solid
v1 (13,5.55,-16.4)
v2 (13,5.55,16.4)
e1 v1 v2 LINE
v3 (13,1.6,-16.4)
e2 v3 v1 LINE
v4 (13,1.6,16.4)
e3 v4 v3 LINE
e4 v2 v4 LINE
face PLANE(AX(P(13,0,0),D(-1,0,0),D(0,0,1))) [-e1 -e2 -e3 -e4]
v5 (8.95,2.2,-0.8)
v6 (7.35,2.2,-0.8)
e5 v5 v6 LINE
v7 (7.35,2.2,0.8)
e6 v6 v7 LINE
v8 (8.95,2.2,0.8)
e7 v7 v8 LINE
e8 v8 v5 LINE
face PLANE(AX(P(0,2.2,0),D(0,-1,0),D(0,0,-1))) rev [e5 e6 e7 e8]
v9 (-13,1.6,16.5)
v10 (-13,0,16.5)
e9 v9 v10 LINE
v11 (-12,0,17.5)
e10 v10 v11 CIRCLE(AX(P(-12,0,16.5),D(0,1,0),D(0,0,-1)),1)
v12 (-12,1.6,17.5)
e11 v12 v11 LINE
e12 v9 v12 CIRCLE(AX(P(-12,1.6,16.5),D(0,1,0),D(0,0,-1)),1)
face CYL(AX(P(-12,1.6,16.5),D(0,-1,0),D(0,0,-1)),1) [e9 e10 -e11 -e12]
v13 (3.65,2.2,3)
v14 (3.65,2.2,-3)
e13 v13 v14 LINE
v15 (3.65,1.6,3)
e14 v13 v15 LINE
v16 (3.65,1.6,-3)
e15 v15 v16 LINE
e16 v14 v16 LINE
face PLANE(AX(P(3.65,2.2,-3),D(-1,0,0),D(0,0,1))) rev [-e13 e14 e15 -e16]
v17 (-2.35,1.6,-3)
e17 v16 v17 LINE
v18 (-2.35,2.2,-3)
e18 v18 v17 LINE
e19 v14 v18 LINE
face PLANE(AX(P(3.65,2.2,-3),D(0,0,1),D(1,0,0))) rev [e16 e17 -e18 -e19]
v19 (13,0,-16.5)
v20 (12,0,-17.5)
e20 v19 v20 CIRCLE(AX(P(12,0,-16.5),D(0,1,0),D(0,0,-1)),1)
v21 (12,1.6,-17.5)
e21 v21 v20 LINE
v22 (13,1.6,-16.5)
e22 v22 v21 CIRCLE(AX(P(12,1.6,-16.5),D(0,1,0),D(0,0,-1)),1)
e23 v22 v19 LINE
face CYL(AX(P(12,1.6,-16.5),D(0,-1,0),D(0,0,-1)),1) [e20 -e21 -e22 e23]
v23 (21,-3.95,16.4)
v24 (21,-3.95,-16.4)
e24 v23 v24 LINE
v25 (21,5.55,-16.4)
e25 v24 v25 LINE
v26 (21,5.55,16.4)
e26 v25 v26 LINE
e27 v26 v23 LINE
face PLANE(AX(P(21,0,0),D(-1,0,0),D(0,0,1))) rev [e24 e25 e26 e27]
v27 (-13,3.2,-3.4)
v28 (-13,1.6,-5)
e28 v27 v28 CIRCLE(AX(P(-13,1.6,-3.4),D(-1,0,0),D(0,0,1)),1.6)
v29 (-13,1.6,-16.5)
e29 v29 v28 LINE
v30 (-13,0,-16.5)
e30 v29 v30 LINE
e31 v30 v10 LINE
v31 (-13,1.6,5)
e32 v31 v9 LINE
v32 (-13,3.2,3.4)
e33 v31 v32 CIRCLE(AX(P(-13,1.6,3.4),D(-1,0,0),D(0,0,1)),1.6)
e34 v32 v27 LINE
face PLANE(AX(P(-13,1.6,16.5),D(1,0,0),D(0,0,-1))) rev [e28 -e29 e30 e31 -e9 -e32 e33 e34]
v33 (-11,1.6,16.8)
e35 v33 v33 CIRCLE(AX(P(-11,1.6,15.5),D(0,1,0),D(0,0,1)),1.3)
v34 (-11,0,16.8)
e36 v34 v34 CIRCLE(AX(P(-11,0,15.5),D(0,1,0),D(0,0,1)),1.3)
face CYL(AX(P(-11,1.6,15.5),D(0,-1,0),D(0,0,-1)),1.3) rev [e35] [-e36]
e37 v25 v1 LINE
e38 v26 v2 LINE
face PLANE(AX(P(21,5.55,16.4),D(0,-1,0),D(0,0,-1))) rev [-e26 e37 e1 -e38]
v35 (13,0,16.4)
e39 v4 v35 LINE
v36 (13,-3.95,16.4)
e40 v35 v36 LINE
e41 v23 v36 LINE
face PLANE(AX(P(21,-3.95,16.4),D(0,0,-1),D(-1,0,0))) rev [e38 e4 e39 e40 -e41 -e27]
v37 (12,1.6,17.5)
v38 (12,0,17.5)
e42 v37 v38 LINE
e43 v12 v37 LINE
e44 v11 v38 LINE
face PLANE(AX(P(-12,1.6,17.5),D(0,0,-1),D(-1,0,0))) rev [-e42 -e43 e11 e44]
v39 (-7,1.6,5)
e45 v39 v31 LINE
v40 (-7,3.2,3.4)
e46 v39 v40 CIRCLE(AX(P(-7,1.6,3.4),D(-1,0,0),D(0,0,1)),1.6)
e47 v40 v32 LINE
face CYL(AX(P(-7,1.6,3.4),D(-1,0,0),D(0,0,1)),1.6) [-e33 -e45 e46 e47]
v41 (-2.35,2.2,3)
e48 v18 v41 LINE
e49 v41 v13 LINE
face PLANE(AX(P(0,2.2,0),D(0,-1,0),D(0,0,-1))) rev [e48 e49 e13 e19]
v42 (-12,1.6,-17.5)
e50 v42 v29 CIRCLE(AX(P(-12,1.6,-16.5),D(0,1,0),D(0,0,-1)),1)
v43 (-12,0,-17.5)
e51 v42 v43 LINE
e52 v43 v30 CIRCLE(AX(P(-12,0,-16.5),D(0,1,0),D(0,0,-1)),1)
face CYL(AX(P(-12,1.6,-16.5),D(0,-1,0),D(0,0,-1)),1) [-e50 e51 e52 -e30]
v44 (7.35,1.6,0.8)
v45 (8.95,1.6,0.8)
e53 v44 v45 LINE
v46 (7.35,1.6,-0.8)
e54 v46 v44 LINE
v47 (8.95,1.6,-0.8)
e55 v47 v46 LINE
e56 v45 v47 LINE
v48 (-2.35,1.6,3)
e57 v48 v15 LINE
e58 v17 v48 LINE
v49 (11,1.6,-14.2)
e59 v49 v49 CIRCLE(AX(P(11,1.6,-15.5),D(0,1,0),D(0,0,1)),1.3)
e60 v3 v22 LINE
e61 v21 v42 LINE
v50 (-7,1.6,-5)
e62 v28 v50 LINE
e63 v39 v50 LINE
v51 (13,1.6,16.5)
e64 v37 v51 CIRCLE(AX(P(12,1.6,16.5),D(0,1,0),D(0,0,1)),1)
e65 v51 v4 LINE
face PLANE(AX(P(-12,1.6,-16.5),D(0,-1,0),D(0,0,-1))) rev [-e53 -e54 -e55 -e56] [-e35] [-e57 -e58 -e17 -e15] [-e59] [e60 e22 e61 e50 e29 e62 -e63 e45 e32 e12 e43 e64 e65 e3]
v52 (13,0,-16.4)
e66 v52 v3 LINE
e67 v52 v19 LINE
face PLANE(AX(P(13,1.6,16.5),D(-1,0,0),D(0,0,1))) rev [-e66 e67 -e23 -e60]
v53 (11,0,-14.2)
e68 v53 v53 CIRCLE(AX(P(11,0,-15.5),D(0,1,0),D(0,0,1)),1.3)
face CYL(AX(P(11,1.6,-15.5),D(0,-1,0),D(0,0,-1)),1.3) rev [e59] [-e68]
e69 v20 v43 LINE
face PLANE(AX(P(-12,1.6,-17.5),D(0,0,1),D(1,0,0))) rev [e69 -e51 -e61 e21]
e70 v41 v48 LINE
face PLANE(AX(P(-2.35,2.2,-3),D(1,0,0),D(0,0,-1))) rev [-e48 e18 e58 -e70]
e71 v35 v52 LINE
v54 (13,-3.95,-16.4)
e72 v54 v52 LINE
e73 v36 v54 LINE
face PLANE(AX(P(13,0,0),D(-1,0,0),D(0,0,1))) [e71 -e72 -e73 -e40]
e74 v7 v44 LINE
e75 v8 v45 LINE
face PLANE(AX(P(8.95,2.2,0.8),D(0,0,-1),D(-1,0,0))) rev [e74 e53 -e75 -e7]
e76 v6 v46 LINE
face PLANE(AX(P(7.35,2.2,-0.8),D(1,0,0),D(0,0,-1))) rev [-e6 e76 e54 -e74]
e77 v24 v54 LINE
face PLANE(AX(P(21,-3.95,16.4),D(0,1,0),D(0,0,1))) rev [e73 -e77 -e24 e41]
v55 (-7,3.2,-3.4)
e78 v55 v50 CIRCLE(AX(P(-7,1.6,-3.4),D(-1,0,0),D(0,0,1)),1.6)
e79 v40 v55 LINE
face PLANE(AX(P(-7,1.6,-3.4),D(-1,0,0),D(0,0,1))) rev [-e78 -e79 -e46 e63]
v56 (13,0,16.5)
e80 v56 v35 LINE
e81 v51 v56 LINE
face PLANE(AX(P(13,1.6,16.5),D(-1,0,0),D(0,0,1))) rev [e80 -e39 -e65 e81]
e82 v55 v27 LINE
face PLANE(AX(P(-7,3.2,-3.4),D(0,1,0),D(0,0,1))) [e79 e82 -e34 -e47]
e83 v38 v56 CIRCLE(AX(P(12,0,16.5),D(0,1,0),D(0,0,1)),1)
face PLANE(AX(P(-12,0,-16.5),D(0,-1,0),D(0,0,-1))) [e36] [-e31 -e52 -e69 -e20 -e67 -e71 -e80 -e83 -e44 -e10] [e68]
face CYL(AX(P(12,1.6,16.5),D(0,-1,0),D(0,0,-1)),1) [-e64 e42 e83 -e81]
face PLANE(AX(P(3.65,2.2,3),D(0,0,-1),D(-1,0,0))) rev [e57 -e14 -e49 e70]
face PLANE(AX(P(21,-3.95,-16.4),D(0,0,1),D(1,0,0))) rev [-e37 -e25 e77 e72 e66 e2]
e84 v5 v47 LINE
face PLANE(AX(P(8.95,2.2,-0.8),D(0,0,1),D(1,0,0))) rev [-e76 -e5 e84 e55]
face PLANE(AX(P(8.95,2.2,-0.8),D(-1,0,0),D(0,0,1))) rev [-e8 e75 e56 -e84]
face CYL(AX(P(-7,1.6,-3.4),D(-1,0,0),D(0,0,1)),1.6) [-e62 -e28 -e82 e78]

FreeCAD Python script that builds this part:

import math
import FreeCAD as App
import Part
import Sketcher

V = App.Vector
Q = App.Units.Quantity

doc = App.newDocument("Part")
body = doc.addObject("PartDesign::Body", "Body")

# Sketch on XZ plane
sketch1 = doc.addObject("Sketcher::SketchObject", "Sketch")
body.addObject(sketch1)
sketch1.AttachmentSupport = (doc.XZ_Plane, [""])
sketch1.MapMode = "FlatFace"
sketch1.addGeometry([
    Part.LineSegment(V(-12, 17.5, 0), V(12, 17.5, 0)),  # 0
    Part.ArcOfCircle(Part.Circle(V(12, 16.5, 0), V(0, 0, 1), 1), math.radians(0), math.radians(90)),  # 1
    Part.LineSegment(V(13, 16.5, 0), V(13, -16.5, 0)),  # 2
    Part.ArcOfCircle(Part.Circle(V(12, -16.5, 0), V(0, 0, 1), 1), math.radians(-90), math.radians(0)),  # 3
    Part.LineSegment(V(12, -17.5, 0), V(-12, -17.5, 0)),  # 4
    Part.ArcOfCircle(Part.Circle(V(-12, -16.5, 0), V(0, 0, 1), 1), math.radians(-180), math.radians(-90)),  # 5
    Part.LineSegment(V(-13, -16.5, 0), V(-13, 16.5, 0)),  # 6
    Part.ArcOfCircle(Part.Circle(V(-12, 16.5, 0), V(0, 0, 1), 1), math.radians(90), math.radians(180)),  # 7
    Part.Circle(V(-11, 15.5, 0), V(0, 0, 1), 1.3),  # 8
    Part.Circle(V(11, -15.5, 0), V(0, 0, 1), 1.3),  # 9
], False)
sketch1.addConstraint([
    Sketcher.Constraint("Tangent", 0, 2, 1, 2),
    Sketcher.Constraint("Tangent", 1, 1, 2, 1),
    Sketcher.Constraint("Tangent", 2, 2, 3, 2),
    Sketcher.Constraint("Tangent", 3, 1, 4, 1),
    Sketcher.Constraint("Tangent", 4, 2, 5, 2),
    Sketcher.Constraint("Tangent", 5, 1, 6, 1),
    Sketcher.Constraint("Tangent", 6, 2, 7, 2),
    Sketcher.Constraint("Tangent", 7, 1, 0, 1),
    Sketcher.Constraint("Horizontal", 0),
    Sketcher.Constraint("Vertical", 2),
    Sketcher.Constraint("Horizontal", 4),
    Sketcher.Constraint("Vertical", 6),
    Sketcher.Constraint("Equal", 1, 3),
    Sketcher.Constraint("Equal", 3, 5),
    Sketcher.Constraint("Equal", 5, 7),
    Sketcher.Constraint("Equal", 8, 9),
    Sketcher.Constraint("Symmetric", 1, 3, 5, 3, -1, 1),
    Sketcher.Constraint("Symmetric", 8, 3, 9, 3, -1, 1),
    Sketcher.Constraint("Radius", 1, Q("1 mm")),
    Sketcher.Constraint("Diameter", 8, Q("2.6 mm")),
    Sketcher.Constraint("DistanceX", 0, 1, 0, 2, Q("24 mm")),
    Sketcher.Constraint("DistanceY", 2, 2, 2, 1, Q("33 mm")),
    Sketcher.Constraint("DistanceX", 8, 3, -1, 1, Q("11 mm")),
    Sketcher.Constraint("DistanceY", 8, 3, 7, 3, Q("1 mm")),
])
pad1 = doc.addObject("PartDesign::Pad", "Pad")
body.addObject(pad1)
pad1.Profile = sketch1
pad1.Length = 1.6
pad1.Reversed = True

# Sketch on YZ plane
sketch2 = doc.addObject("Sketcher::SketchObject", "Sketch001")
body.addObject(sketch2)
sketch2.AttachmentSupport = (doc.YZ_Plane, [""])
sketch2.MapMode = "FlatFace"
sketch2.AttachmentOffset = App.Placement(V(0, 0, -13), App.Rotation())
sketch2.addGeometry([
    Part.LineSegment(V(3.2, 3.4, 0), V(3.2, -3.4, 0)),
    Part.ArcOfCircle(Part.Circle(V(1.6, -3.4, 0), V(0, 0, 1), 1.6), math.radians(180), math.radians(360)),
    Part.LineSegment(V(0, -3.4, 0), V(0, 3.4, 0)),
    Part.ArcOfCircle(Part.Circle(V(1.6, 3.4, 0), V(0, 0, 1), 1.6), math.radians(0), math.radians(180)),
], False)
sketch2.addConstraint([
    Sketcher.Constraint("Tangent", 0, 2, 1, 2),
    Sketcher.Constraint("Tangent", 1, 1, 2, 1),
    Sketcher.Constraint("Tangent", 2, 2, 3, 2),
    Sketcher.Constraint("Tangent", 3, 1, 0, 1),
    Sketcher.Constraint("Vertical", 0),
    Sketcher.Constraint("Vertical", 2),
    Sketcher.Constraint("Symmetric", 1, 1, 2, 2, -1, 1),
    Sketcher.Constraint("Radius", 1, Q("1.6 mm")),
    Sketcher.Constraint("DistanceY", 0, 2, 0, 1, Q("6.8 mm")),
])
pad2 = doc.addObject("PartDesign::Pad", "Pad001")
body.addObject(pad2)
pad2.Profile = sketch2
pad2.Length = 6

# Sketch on XZ plane
sketch3 = doc.addObject("Sketcher::SketchObject", "Sketch002")
body.addObject(sketch3)
sketch3.AttachmentSupport = (doc.XZ_Plane, [""])
sketch3.MapMode = "FlatFace"
sketch3.AttachmentOffset = App.Placement(V(0, 0, -1.6), App.Rotation())
sketch3.addGeometry([
    Part.LineSegment(V(-2.35, -3, 0), V(-2.35, 3, 0)),
    Part.LineSegment(V(-2.35, 3, 0), V(3.65, 3, 0)),
    Part.LineSegment(V(3.65, 3, 0), V(3.65, -3, 0)),
    Part.LineSegment(V(3.65, -3, 0), V(-2.35, -3, 0)),
], False)
sketch3.addConstraint([
    Sketcher.Constraint("Coincident", 0, 2, 1, 1),
    Sketcher.Constraint("Coincident", 1, 2, 2, 1),
    Sketcher.Constraint("Coincident", 2, 2, 3, 1),
    Sketcher.Constraint("Coincident", 3, 2, 0, 1),
    Sketcher.Constraint("Vertical", 0),
    Sketcher.Constraint("Horizontal", 1),
    Sketcher.Constraint("Vertical", 2),
    Sketcher.Constraint("Horizontal", 3),
    Sketcher.Constraint("Equal", 3, 0),
    Sketcher.Constraint("DistanceX", 1, 1, 1, 2, Q("6 mm")),
    Sketcher.Constraint("DistanceY", -1, 1, 0, 2, Q("3 mm")),
    Sketcher.Constraint("DistanceX", 0, 2, -1, 1, Q("2.35 mm")),
])
pad3 = doc.addObject("PartDesign::Pad", "Pad002")
body.addObject(pad3)
pad3.Profile = sketch3
pad3.Length = 0.6
pad3.Reversed = True

# Sketch on XZ plane
sketch4 = doc.addObject("Sketcher::SketchObject", "Sketch003")
body.addObject(sketch4)
sketch4.AttachmentSupport = (doc.XZ_Plane, [""])
sketch4.MapMode = "FlatFace"
sketch4.AttachmentOffset = App.Placement(V(0, 0, -1.6), App.Rotation())
sketch4.addGeometry([
    Part.LineSegment(V(7.35, -0.8, 0), V(7.35, 0.8, 0)),
    Part.LineSegment(V(7.35, 0.8, 0), V(8.95, 0.8, 0)),
    Part.LineSegment(V(8.95, 0.8, 0), V(8.95, -0.8, 0)),
    Part.LineSegment(V(8.95, -0.8, 0), V(7.35, -0.8, 0)),
], False)
sketch4.addConstraint([
    Sketcher.Constraint("Coincident", 0, 2, 1, 1),
    Sketcher.Constraint("Coincident", 1, 2, 2, 1),
    Sketcher.Constraint("Coincident", 2, 2, 3, 1),
    Sketcher.Constraint("Coincident", 3, 2, 0, 1),
    Sketcher.Constraint("Vertical", 0),
    Sketcher.Constraint("Horizontal", 1),
    Sketcher.Constraint("Vertical", 2),
    Sketcher.Constraint("Horizontal", 3),
    Sketcher.Constraint("Equal", 3, 0),
    Sketcher.Constraint("DistanceX", 1, 1, 1, 2, Q("1.6 mm")),
    Sketcher.Constraint("DistanceY", -1, 1, 0, 2, Q("0.8 mm")),
    Sketcher.Constraint("DistanceX", -1, 1, 0, 2, Q("7.35 mm")),
])
pad4 = doc.addObject("PartDesign::Pad", "Pad003")
body.addObject(pad4)
pad4.Profile = sketch4
pad4.Length = 0.6
pad4.Reversed = True

# Sketch on YZ plane
sketch5 = doc.addObject("Sketcher::SketchObject", "Sketch004")
body.addObject(sketch5)
sketch5.AttachmentSupport = (doc.YZ_Plane, [""])
sketch5.MapMode = "FlatFace"
sketch5.AttachmentOffset = App.Placement(V(0, 0, 13), App.Rotation())
sketch5.addGeometry([
    Part.LineSegment(V(5.55, 16.4, 0), V(-3.95, 16.4, 0)),
    Part.LineSegment(V(-3.95, 16.4, 0), V(-3.95, -16.4, 0)),
    Part.LineSegment(V(-3.95, -16.4, 0), V(5.55, -16.4, 0)),
    Part.LineSegment(V(5.55, -16.4, 0), V(5.55, 16.4, 0)),
], False)
sketch5.addConstraint([
    Sketcher.Constraint("Coincident", 0, 2, 1, 1),
    Sketcher.Constraint("Coincident", 1, 2, 2, 1),
    Sketcher.Constraint("Coincident", 2, 2, 3, 1),
    Sketcher.Constraint("Coincident", 3, 2, 0, 1),
    Sketcher.Constraint("Horizontal", 0),
    Sketcher.Constraint("Vertical", 1),
    Sketcher.Constraint("Horizontal", 2),
    Sketcher.Constraint("Vertical", 3),
    Sketcher.Constraint("DistanceX", 0, 2, 0, 1, Q("9.5 mm")),
    Sketcher.Constraint("DistanceY", 1, 2, 1, 1, Q("32.8 mm")),
    Sketcher.Constraint("DistanceY", -1, 1, 0, 2, Q("16.4 mm")),
    Sketcher.Constraint("DistanceX", 0, 2, -1, 1, Q("3.95 mm")),
])
pad5 = doc.addObject("PartDesign::Pad", "Pad004")
body.addObject(pad5)
pad5.Profile = sketch5
pad5.Length = 8

doc.recompute()
